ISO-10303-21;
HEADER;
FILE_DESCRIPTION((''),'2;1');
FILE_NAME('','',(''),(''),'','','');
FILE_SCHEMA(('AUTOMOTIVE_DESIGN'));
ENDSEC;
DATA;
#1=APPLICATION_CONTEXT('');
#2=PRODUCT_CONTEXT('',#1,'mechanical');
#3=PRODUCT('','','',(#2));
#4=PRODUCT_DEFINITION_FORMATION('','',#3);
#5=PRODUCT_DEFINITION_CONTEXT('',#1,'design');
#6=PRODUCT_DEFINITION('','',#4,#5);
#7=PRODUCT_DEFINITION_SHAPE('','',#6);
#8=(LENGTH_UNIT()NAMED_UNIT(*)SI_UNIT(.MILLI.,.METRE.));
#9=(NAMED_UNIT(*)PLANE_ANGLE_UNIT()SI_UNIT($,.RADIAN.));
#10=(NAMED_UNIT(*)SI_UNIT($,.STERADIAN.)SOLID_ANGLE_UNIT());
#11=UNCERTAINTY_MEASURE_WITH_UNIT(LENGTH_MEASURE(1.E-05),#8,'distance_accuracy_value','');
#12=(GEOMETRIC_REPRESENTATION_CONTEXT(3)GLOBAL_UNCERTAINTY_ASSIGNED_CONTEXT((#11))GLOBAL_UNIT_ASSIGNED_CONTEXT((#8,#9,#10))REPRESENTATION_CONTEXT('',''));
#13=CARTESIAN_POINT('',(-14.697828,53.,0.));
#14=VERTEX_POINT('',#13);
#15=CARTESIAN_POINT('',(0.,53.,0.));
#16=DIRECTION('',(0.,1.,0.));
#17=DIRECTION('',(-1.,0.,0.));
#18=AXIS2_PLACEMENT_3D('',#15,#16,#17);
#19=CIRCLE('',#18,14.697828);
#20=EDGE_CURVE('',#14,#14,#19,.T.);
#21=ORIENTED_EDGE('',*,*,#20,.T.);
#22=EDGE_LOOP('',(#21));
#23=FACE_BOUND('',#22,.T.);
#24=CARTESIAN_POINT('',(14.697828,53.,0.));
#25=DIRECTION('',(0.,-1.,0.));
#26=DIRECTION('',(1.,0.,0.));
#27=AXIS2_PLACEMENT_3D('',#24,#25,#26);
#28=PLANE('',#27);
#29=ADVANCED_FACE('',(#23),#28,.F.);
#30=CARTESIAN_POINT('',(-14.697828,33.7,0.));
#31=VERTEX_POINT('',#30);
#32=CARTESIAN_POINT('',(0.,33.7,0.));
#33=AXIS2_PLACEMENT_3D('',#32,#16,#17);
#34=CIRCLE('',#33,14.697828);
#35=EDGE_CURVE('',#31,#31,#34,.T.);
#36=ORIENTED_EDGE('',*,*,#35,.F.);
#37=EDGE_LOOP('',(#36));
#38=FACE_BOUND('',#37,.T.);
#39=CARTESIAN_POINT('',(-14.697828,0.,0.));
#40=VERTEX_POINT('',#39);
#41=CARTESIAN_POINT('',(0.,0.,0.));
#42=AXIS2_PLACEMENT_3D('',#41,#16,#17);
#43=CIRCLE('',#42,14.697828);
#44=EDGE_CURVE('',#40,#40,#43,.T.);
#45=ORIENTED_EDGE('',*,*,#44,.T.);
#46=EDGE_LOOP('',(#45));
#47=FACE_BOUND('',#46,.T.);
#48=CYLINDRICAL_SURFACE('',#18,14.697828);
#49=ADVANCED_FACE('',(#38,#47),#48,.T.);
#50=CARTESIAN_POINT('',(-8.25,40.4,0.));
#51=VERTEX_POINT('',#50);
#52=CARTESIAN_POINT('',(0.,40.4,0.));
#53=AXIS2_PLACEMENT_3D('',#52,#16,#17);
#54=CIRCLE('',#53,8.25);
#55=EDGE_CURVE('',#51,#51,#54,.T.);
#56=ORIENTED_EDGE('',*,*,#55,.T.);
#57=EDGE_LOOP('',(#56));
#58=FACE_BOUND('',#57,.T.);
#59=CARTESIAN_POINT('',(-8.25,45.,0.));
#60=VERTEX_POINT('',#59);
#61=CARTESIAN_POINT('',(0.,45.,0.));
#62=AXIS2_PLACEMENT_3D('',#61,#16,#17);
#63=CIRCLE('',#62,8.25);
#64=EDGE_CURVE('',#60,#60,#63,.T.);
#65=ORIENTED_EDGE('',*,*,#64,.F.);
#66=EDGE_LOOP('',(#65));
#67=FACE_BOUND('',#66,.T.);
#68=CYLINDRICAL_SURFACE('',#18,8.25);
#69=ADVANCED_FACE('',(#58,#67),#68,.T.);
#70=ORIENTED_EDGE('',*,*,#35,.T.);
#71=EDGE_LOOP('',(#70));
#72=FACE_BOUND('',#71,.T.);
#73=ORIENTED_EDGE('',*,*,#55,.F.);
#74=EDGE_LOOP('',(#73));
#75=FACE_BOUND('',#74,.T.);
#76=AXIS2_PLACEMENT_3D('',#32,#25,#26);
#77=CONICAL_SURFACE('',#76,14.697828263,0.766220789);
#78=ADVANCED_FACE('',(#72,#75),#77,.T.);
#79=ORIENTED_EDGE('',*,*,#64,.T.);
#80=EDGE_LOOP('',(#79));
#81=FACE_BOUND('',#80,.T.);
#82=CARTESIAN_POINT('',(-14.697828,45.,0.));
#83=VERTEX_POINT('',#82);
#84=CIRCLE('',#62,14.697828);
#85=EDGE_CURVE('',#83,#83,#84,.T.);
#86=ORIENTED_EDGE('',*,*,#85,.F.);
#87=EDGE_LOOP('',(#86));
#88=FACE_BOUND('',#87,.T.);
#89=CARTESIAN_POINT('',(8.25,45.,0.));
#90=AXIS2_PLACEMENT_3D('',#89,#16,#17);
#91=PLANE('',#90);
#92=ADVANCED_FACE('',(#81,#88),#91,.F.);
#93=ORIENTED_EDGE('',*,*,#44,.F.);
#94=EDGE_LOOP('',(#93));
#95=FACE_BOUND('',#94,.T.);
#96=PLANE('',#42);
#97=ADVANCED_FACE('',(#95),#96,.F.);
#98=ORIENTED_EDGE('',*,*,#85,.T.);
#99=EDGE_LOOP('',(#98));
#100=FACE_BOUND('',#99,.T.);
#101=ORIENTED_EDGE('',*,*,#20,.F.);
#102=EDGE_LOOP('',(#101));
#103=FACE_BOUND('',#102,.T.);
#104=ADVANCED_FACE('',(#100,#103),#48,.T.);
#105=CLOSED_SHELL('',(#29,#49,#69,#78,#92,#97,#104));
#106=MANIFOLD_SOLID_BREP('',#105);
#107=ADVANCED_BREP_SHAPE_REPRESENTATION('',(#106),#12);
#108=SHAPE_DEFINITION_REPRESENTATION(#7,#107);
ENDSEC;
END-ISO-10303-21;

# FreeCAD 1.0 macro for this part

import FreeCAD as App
import Part
import Sketcher

V = App.Vector
Q = App.Units.Quantity

doc = App.newDocument("Part")
body = doc.addObject("PartDesign::Body", "Body")

# Sketch on XY plane
sketch1 = body.newObject("Sketcher::SketchObject", "Sketch")
sketch1.AttachmentSupport = (doc.getObject("XY_Plane"), [""])
sketch1.MapMode = "FlatFace"
sketch1.addGeometry(Part.LineSegment(V(0, 0, 0), V(14.7, 0, 0)), False)
sketch1.addGeometry(Part.LineSegment(V(14.7, 0, 0), V(14.7, 33.7, 0)), False)
sketch1.addGeometry(Part.LineSegment(V(14.7, 33.7, 0), V(8.2, 40.4, 0)), False)
sketch1.addGeometry(Part.LineSegment(V(8.2, 40.4, 0), V(8.2, 45, 0)), False)
sketch1.addGeometry(Part.LineSegment(V(8.2, 45, 0), V(14.7, 45, 0)), False)
sketch1.addGeometry(Part.LineSegment(V(14.7, 45, 0), V(14.7, 53, 0)), False)
sketch1.addGeometry(Part.LineSegment(V(14.7, 53, 0), V(0, 53, 0)), False)
sketch1.addGeometry(Part.LineSegment(V(0, 53, 0), V(0, 0, 0)), False)
sketch1.addConstraint(Sketcher.Constraint("Coincident", 0, 2, 1, 1))
sketch1.addConstraint(Sketcher.Constraint("Coincident", 1, 2, 2, 1))
sketch1.addConstraint(Sketcher.Constraint("Coincident", 2, 2, 3, 1))
sketch1.addConstraint(Sketcher.Constraint("Coincident", 3, 2, 4, 1))
sketch1.addConstraint(Sketcher.Constraint("Coincident", 4, 2, 5, 1))
sketch1.addConstraint(Sketcher.Constraint("Coincident", 5, 2, 6, 1))
sketch1.addConstraint(Sketcher.Constraint("Coincident", 6, 2, 7, 1))
sketch1.addConstraint(Sketcher.Constraint("Coincident", 7, 2, 0, 1))
sketch1.addConstraint(Sketcher.Constraint("Horizontal", 0))
sketch1.addConstraint(Sketcher.Constraint("Vertical", 1))
sketch1.addConstraint(Sketcher.Constraint("Vertical", 3))
sketch1.addConstraint(Sketcher.Constraint("Horizontal", 4))
sketch1.addConstraint(Sketcher.Constraint("Vertical", 5))
sketch1.addConstraint(Sketcher.Constraint("Horizontal", 6))
sketch1.addConstraint(Sketcher.Constraint("Vertical", 7))
sketch1.addConstraint(Sketcher.Constraint("Coincident", 7, 2, -1, 1))
sketch1.addConstraint(Sketcher.Constraint("Vertical", 1, 2, 4, 2))
sketch1.addConstraint(Sketcher.Constraint("DistanceY", 5, 1, 5, 2, Q("8 mm")))
sketch1.addConstraint(Sketcher.Constraint("DistanceY", 7, 2, 7, 1, Q("53 mm")))
sketch1.addConstraint(Sketcher.Constraint("DistanceY", 1, 1, 1, 2, Q("33.7 mm")))
sketch1.addConstraint(Sketcher.Constraint("DistanceY", 3, 1, 3, 2, Q("4.6 mm")))
sketch1.addConstraint(Sketcher.Constraint("DistanceX", -1, 1, 2, 2, Q("8.25 mm")))
sketch1.addConstraint(Sketcher.Constraint("DistanceX", 0, 1, 0, 2, Q("14.697828 mm")))
revolution = body.newObject("PartDesign::Revolution", "Revolution")
revolution.Profile = sketch1
revolution.ReferenceAxis = (sketch1, ["V_Axis"])
revolution.Angle = 360

doc.recompute()
